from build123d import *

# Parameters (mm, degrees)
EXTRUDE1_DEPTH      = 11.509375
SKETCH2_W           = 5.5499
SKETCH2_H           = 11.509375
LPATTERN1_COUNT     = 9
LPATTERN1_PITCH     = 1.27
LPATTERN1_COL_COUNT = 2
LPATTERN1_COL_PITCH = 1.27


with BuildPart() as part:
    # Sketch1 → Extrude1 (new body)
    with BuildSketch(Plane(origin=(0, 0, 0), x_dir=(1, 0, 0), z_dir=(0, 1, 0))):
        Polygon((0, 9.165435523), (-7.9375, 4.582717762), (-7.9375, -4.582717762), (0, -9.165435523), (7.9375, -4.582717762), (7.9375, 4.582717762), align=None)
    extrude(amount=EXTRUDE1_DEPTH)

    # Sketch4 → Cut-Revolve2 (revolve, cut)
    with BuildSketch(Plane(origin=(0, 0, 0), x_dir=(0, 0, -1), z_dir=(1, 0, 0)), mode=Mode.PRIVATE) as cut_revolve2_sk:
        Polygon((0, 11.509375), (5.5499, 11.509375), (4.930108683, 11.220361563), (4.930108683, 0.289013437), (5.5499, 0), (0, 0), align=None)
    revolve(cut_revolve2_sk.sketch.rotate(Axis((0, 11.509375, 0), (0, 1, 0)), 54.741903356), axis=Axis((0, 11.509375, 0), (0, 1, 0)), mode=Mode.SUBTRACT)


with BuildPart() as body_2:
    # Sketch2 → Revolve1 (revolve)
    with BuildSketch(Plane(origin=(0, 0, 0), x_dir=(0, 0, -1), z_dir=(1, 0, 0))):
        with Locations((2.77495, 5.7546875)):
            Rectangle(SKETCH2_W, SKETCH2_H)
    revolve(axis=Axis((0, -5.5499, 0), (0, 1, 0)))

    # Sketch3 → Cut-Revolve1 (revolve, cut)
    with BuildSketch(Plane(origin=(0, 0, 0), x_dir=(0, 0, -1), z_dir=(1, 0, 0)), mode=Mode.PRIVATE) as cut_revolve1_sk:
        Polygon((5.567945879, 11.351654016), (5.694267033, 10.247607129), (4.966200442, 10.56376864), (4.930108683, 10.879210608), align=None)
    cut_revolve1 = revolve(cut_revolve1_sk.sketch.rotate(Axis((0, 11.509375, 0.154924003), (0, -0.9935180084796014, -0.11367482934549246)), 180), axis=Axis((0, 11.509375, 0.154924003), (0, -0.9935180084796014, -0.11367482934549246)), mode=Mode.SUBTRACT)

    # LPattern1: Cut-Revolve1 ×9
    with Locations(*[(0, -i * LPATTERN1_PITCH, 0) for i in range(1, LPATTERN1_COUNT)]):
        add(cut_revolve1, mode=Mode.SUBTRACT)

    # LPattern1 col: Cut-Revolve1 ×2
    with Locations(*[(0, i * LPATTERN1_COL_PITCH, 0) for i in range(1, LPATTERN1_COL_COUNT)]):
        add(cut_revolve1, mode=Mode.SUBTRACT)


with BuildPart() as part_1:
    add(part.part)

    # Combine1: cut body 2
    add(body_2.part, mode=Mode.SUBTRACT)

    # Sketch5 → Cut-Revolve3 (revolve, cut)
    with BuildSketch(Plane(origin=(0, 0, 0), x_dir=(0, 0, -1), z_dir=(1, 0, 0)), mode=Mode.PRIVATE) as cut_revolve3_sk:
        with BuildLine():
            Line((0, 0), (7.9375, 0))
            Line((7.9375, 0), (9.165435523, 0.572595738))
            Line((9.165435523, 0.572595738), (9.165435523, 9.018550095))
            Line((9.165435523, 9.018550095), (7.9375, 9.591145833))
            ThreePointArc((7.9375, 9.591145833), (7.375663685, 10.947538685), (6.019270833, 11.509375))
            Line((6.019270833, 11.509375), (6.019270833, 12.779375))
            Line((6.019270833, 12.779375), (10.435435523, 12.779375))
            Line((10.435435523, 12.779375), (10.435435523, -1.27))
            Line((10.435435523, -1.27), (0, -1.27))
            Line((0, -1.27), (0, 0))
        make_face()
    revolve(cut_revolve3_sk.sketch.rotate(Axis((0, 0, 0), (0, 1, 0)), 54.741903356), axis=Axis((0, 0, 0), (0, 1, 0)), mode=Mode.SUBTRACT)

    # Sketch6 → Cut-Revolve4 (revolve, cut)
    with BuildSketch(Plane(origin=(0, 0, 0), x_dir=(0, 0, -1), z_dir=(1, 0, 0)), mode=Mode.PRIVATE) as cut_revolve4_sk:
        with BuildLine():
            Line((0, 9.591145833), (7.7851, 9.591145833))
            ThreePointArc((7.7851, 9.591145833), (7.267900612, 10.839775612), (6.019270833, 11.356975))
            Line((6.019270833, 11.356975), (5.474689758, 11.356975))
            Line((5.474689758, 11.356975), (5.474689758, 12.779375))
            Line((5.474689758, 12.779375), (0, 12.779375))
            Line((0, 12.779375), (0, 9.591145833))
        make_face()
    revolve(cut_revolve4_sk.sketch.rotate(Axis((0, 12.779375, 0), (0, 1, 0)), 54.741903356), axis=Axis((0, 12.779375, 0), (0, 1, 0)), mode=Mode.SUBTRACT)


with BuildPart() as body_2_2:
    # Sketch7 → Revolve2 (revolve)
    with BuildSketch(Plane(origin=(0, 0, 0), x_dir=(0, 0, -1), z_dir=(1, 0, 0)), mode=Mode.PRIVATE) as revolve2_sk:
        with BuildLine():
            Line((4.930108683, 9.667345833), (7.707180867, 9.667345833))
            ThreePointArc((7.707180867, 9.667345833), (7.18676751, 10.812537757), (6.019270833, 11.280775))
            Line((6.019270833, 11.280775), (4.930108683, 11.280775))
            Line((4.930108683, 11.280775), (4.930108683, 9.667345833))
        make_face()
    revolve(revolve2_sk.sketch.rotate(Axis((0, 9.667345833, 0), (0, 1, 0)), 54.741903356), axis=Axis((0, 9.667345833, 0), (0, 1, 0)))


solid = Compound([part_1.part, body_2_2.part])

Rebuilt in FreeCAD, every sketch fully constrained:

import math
import FreeCAD as App
import Part
import Sketcher
Q = App.Units.Quantity


def add_polygon(sketch, points):
    """Adds a closed chain of lines whose ends are joined by coincident constraints."""
    first, n = sketch.GeometryCount, len(points)
    for a, b in zip(points, points[1:] + points[:1]):
        sketch.addGeometry(Part.LineSegment(App.Vector(*a, 0), App.Vector(*b, 0)), False)
    for i in range(n):
        sketch.addConstraint(Sketcher.Constraint("Coincident", first + i, 2, first + (i + 1) % n, 1))

doc = App.newDocument("Part")
params = doc.addObject("Spreadsheet::Sheet", "Params")
for row, (alias, value) in enumerate([
    ("pad1_length", "0.453125 in"),
    ("sketch2_width", "0.453125 in"),
    ("groove_angle", "360 deg"),
    ("sketch3_width", "0.453125 in"),
    ("revolution_angle", "360 deg"),
    ("sketch4_length", "0.03125 in"),
    ("groove2_angle", "360 deg"),
    ("linearpattern_pitch", "0.05 in"),
    ("linearpattern2_pitch", "0.05 in"),
    ("sketch5_width", "0.05 in"),
    ("sketch5_height", "0.3125 in"),
    ("groove3_angle", "360 deg"),
    ("sketch6_width", "0.056 in"),
    ("groove4_angle", "360 deg"),
    ("revolution2_angle", "360 deg"),
], start=1):
    params.set(f"A{row}", alias)
    params.set(f"B{row}", "=" + value)
    params.setAlias(f"B{row}", alias)

body = doc.addObject("PartDesign::Body", "Body")

# Sketch on XZ plane
sketch1 = body.newObject("Sketcher::SketchObject", "Sketch")
sketch1.AttachmentSupport = (doc.getObject("XZ_Plane"), [""])
sketch1.MapMode = "FlatFace"
add_polygon(sketch1, [(0, -9), (-8, -5), (-8, 5), (0, 9), (8, 5), (8, -5)])  # lines 0-5
sketch1.addConstraint(Sketcher.Constraint("Vertical", 1))
sketch1.addConstraint(Sketcher.Constraint("Vertical", 4))
sketch1.addConstraint(Sketcher.Constraint("Symmetric", 0, 2, 3, 2, -1, 1))
sketch1.addConstraint(Sketcher.Constraint("Symmetric", 2, 2, 5, 2, -1, 1))
sketch1.addConstraint(Sketcher.Constraint("PointOnObject", 2, 2, -2))
sketch1.addConstraint(Sketcher.Constraint("Parallel", 2, 5))
sketch1.addConstraint(Sketcher.Constraint("Horizontal", 1, 2, 3, 2))
sketch1.addConstraint(Sketcher.Constraint("Angle", 0, Q("150 deg")))
sketch1.addConstraint(Sketcher.Constraint("DistanceX", 0, 2, -1, 1, Q("0.3125 in")))
sketch1.addConstraint(Sketcher.Constraint("DistanceY", 1, 1, 1, 2, Q("9.165436 mm")))
pad1 = body.newObject("PartDesign::Pad", "Pad")
pad1.Profile = sketch1
pad1.setExpression("Length", "Params.pad1_length")
pad1.Reversed = True

# Sketch on YZ plane
sketch2 = body.newObject("Sketcher::SketchObject", "Sketch001")
sketch2.AttachmentSupport = (doc.getObject("YZ_Plane"), [""])
sketch2.MapMode = "FlatFace"
add_polygon(sketch2, [(11.5, -5.5), (11.5, 0), (0, 0), (0, -5.5), (0.3, -4.9), (11.2, -4.9)])  # lines 0-5
sketch2.addConstraint(Sketcher.Constraint("Vertical", 0))
sketch2.addConstraint(Sketcher.Constraint("Horizontal", 1))
sketch2.addConstraint(Sketcher.Constraint("Vertical", 2))
sketch2.addConstraint(Sketcher.Constraint("Horizontal", 4))
sketch2.addConstraint(Sketcher.Constraint("Coincident", 1, 2, -1, 1))
sketch2.addConstraint(Sketcher.Constraint("Horizontal", 2, 2, 5, 2))
sketch2.addConstraint(Sketcher.Constraint("Equal", 3, 5))
sketch2.addConstraint(Sketcher.Constraint("Angle", 3, Q("65 deg")))
sketch2.addConstraint(Sketcher.Constraint("DistanceX", 1, 2, 1, 1, Q("0.453125 in")))
sketch2.addConstraint(Sketcher.Constraint("DistanceY", 0, 1, 0, 2, Q("0.2185 in")))
sketch2.addConstraint(Sketcher.Constraint("DistanceX", 4, 1, 4, 2, Q("10.931348 mm")))
sketch2.setExpression("Constraints[14]", "Params.sketch2_width")
groove = body.newObject("PartDesign::Groove", "Groove")
groove.Profile = sketch2
groove.ReferenceAxis = (sketch2, ["H_Axis"])
groove.setExpression("Angle", "Params.groove_angle")
body2 = doc.addObject("PartDesign::Body", "Body001")

# Sketch on YZ plane
sketch3 = body2.newObject("Sketcher::SketchObject", "Sketch002")
sketch3.AttachmentSupport = (doc.getObject("YZ_Plane001"), [""])
sketch3.MapMode = "FlatFace"
add_polygon(sketch3, [(12, 0), (0, 0), (0, -6), (12, -6)])  # lines 0-3
sketch3.addConstraint(Sketcher.Constraint("Horizontal", 0))
sketch3.addConstraint(Sketcher.Constraint("Vertical", 1))
sketch3.addConstraint(Sketcher.Constraint("Horizontal", 2))
sketch3.addConstraint(Sketcher.Constraint("Vertical", 3))
sketch3.addConstraint(Sketcher.Constraint("Coincident", 0, 2, -1, 1))
sketch3.addConstraint(Sketcher.Constraint("DistanceX", 0, 2, 0, 1, Q("0.453125 in")))
sketch3.addConstraint(Sketcher.Constraint("DistanceY", 1, 2, 1, 1, Q("0.2185 in")))
sketch3.setExpression("Constraints[9]", "Params.sketch3_width")
revolution = body2.newObject("PartDesign::Revolution", "Revolution")
revolution.Profile = sketch3
revolution.ReferenceAxis = (sketch3, ["H_Axis"])
revolution.setExpression("Angle", "Params.revolution_angle")

# Sketch on YZ plane
sketch4 = body2.newObject("Sketcher::SketchObject", "Sketch003")
sketch4.AttachmentSupport = (doc.getObject("YZ_Plane001"), [""])
sketch4.MapMode = "FlatFace"
add_polygon(sketch4, [(10.25, -5.69), (11.35, -5.57), (10.88, -4.93), (10.56, -4.97)])  # lines 0-3
sketch4.addGeometry(Part.LineSegment(App.Vector(10.71, 0.06, 0), App.Vector(9.6, -0.06, 0)), True)  # axis
sketch4.addConstraint(Sketcher.Constraint("Parallel", 0, 2))
sketch4.addConstraint(Sketcher.Constraint("Parallel", 2, 4))
sketch4.addConstraint(Sketcher.Constraint("Equal", 1, 3))
sketch4.addConstraint(Sketcher.Constraint("Equal", 0, 4))
sketch4.addConstraint(Sketcher.Constraint("Distance", 1, Q("0.03125 in")))
sketch4.addConstraint(Sketcher.Constraint("Distance", 2, Q("0.0125 in")))
sketch4.addConstraint(Sketcher.Constraint("DistanceX", 1, 2, 0, 2, Q("0.0186001 in")))
sketch4.addConstraint(Sketcher.Constraint("DistanceY", 2, 2, -1, 1, Q("4.9662 mm")))
sketch4.addConstraint(Sketcher.Constraint("Distance", 0, Q("1.11125 mm")))
sketch4.addConstraint(Sketcher.Constraint("DistanceX", -1, 1, 1, 2, Q("10.879211 mm")))
sketch4.addConstraint(Sketcher.Constraint("DistanceY", -1, 1, 4, 1, Q("0.063161 mm")))
sketch4.addConstraint(Sketcher.Constraint("DistanceX", 4, 1, 0, 2, Q("0.644291 mm")))
sketch4.setExpression("Constraints[8]", "Params.sketch4_length")
groove2 = body2.newObject("PartDesign::Groove", "Groove001")
groove2.Profile = sketch4
groove2.ReferenceAxis = (sketch4, ["Axis0"])
groove2.setExpression("Angle", "Params.groove2_angle")
doc.recompute()

linearpattern = body2.newObject("PartDesign::LinearPattern", "LinearPattern")
linearpattern.Originals = [groove2]
linearpattern.Direction = (doc.getObject("Y_Axis001"), [""])
linearpattern.Mode = "offset"
linearpattern.setExpression("Offset", "Params.linearpattern_pitch")
linearpattern.Occurrences = 9
linearpattern.Reversed = True
body2.Tip = linearpattern
doc.recompute()

linearpattern2 = body2.newObject("PartDesign::LinearPattern", "LinearPattern001")
linearpattern2.Originals = [groove2]
linearpattern2.Direction = (doc.getObject("Y_Axis001"), [""])
linearpattern2.Mode = "offset"
linearpattern2.setExpression("Offset", "Params.linearpattern2_pitch")
linearpattern2.Occurrences = 2
body2.Tip = linearpattern2
doc.recompute()

boolean = body.newObject("PartDesign::Boolean", "Boolean")
boolean.Type = "Cut"
boolean.addObjects([body2])

# Sketch on YZ plane
sketch5 = body.newObject("Sketcher::SketchObject", "Sketch004")
sketch5.AttachmentSupport = (doc.getObject("YZ_Plane"), [""])
sketch5.MapMode = "FlatFace"
sketch5.addGeometry(Part.LineSegment(App.Vector(0, -7.9, 0), App.Vector(0, 0, 0)), False)
sketch5.addGeometry(Part.LineSegment(App.Vector(0, 0, 0), App.Vector(-1.3, 0, 0)), False)
sketch5.addGeometry(Part.LineSegment(App.Vector(-1.3, 0, 0), App.Vector(-1.3, -10.4, 0)), False)
sketch5.addGeometry(Part.LineSegment(App.Vector(-1.3, -10.4, 0), App.Vector(12.8, -10.4, 0)), False)
sketch5.addGeometry(Part.LineSegment(App.Vector(12.8, -10.4, 0), App.Vector(12.8, -6, 0)), False)
sketch5.addGeometry(Part.LineSegment(App.Vector(12.8, -6, 0), App.Vector(11.5, -6, 0)), False)
sketch5.addGeometry(Part.ArcOfCircle(Part.Circle(App.Vector(9.6, -6, 0), App.Vector(0, 0, 1), 1.9), math.radians(-90), math.radians(0)), False)
sketch5.addGeometry(Part.LineSegment(App.Vector(9.6, -7.9, 0), App.Vector(9, -9.2, 0)), False)
sketch5.addGeometry(Part.LineSegment(App.Vector(9, -9.2, 0), App.Vector(0.6, -9.2, 0)), False)
sketch5.addGeometry(Part.LineSegment(App.Vector(0.6, -9.2, 0), App.Vector(0, -7.9, 0)), False)
sketch5.addConstraint(Sketcher.Constraint("Coincident", 0, 2, 1, 1))
sketch5.addConstraint(Sketcher.Constraint("Coincident", 1, 2, 2, 1))
sketch5.addConstraint(Sketcher.Constraint("Coincident", 2, 2, 3, 1))
sketch5.addConstraint(Sketcher.Constraint("Coincident", 3, 2, 4, 1))
sketch5.addConstraint(Sketcher.Constraint("Coincident", 4, 2, 5, 1))
sketch5.addConstraint(Sketcher.Constraint("Coincident", 5, 2, 6, 2))
sketch5.addConstraint(Sketcher.Constraint("Coincident", 6, 1, 7, 1))
sketch5.addConstraint(Sketcher.Constraint("Coincident", 7, 2, 8, 1))
sketch5.addConstraint(Sketcher.Constraint("Coincident", 8, 2, 9, 1))
sketch5.addConstraint(Sketcher.Constraint("Coincident", 9, 2, 0, 1))
sketch5.addConstraint(Sketcher.Constraint("Vertical", 0))
sketch5.addConstraint(Sketcher.Constraint("Horizontal", 1))
sketch5.addConstraint(Sketcher.Constraint("Vertical", 2))
sketch5.addConstraint(Sketcher.Constraint("Horizontal", 3))
sketch5.addConstraint(Sketcher.Constraint("Vertical", 4))
sketch5.addConstraint(Sketcher.Constraint("Horizontal", 5))
sketch5.addConstraint(Sketcher.Constraint("Horizontal", 8))
sketch5.addConstraint(Sketcher.Constraint("Coincident", 0, 2, -1, 1))
sketch5.addConstraint(Sketcher.Constraint("Horizontal", 6, 3, 4, 2))
sketch5.addConstraint(Sketcher.Constraint("Horizontal", 6, 1, 9, 2))
sketch5.addConstraint(Sketcher.Constraint("Equal", 1, 5))
sketch5.addConstraint(Sketcher.Constraint("Equal", 7, 9))
sketch5.addConstraint(Sketcher.Constraint("Angle", 7, Q("-115 deg")))
sketch5.addConstraint(Sketcher.Constraint("DistanceX", 1, 2, 1, 1, Q("0.05 in")))
sketch5.addConstraint(Sketcher.Constraint("DistanceY", 0, 1, 0, 2, Q("0.3125 in")))
sketch5.addConstraint(Sketcher.Constraint("DistanceY", 3, 2, 7, 2, Q("0.05 in")))
sketch5.addConstraint(Sketcher.Constraint("DistanceX", -1, 1, 5, 2, Q("0.453125 in")))
sketch5.addConstraint(Sketcher.Constraint("Radius", 6, Q("1.918229 mm")))
sketch5.addConstraint(Sketcher.Constraint("DistanceX", 8, 2, 8, 1, Q("8.445954 mm")))
sketch5.addConstraint(Sketcher.Constraint("DistanceY", 2, 2, 2, 1, Q("10.435436 mm")))
sketch5.setExpression("Constraints[23]", "Params.sketch5_width")
sketch5.setExpression("Constraints[24]", "Params.sketch5_height")
groove3 = body.newObject("PartDesign::Groove", "Groove002")
groove3.Profile = sketch5
groove3.ReferenceAxis = (sketch5, ["H_Axis"])
groove3.setExpression("Angle", "Params.groove3_angle")

# Sketch on YZ plane
sketch6 = body.newObject("Sketcher::SketchObject", "Sketch005")
sketch6.AttachmentSupport = (doc.getObject("YZ_Plane"), [""])
sketch6.MapMode = "FlatFace"
sketch6.addGeometry(Part.LineSegment(App.Vector(9.6, 0, 0), App.Vector(9.6, -7.8, 0)), False)
sketch6.addGeometry(Part.ArcOfCircle(Part.Circle(App.Vector(9.6, -6, 0), App.Vector(0, 0, 1), 1.8), math.radians(-90), math.radians(0)), False)
sketch6.addGeometry(Part.LineSegment(App.Vector(11.4, -6, 0), App.Vector(11.4, -5.5, 0)), False)
sketch6.addGeometry(Part.LineSegment(App.Vector(11.4, -5.5, 0), App.Vector(12.8, -5.5, 0)), False)
sketch6.addGeometry(Part.LineSegment(App.Vector(12.8, -5.5, 0), App.Vector(12.8, 0, 0)), False)
sketch6.addGeometry(Part.LineSegment(App.Vector(12.8, 0, 0), App.Vector(9.6, 0, 0)), False)
sketch6.addConstraint(Sketcher.Constraint("Coincident", 0, 2, 1, 1))
sketch6.addConstraint(Sketcher.Constraint("Tangent", 1, 2, 2, 1))
sketch6.addConstraint(Sketcher.Constraint("Coincident", 2, 2, 3, 1))
sketch6.addConstraint(Sketcher.Constraint("Coincident", 3, 2, 4, 1))
sketch6.addConstraint(Sketcher.Constraint("Coincident", 4, 2, 5, 1))
sketch6.addConstraint(Sketcher.Constraint("Coincident", 5, 2, 0, 1))
sketch6.addConstraint(Sketcher.Constraint("Vertical", 0))
sketch6.addConstraint(Sketcher.Constraint("Vertical", 2))
sketch6.addConstraint(Sketcher.Constraint("Horizontal", 3))
sketch6.addConstraint(Sketcher.Constraint("Vertical", 4))
sketch6.addConstraint(Sketcher.Constraint("Horizontal", 5))
sketch6.addConstraint(Sketcher.Constraint("PointOnObject", 4, 2, -1))
sketch6.addConstraint(Sketcher.Constraint("Vertical", 1, 3, 0, 2))
sketch6.addConstraint(Sketcher.Constraint("DistanceX", 3, 1, 3, 2, Q("0.056 in")))
sketch6.addConstraint(Sketcher.Constraint("DistanceY", 0, 2, 0, 1, Q("0.3065 in")))
sketch6.addConstraint(Sketcher.Constraint("Radius", 1, Q("1.765829 mm")))
sketch6.addConstraint(Sketcher.Constraint("DistanceY", 2, 1, 2, 2, Q("0.544581 mm")))
sketch6.addConstraint(Sketcher.Constraint("DistanceX", -1, 1, 1, 3, Q("9.591146 mm")))
sketch6.setExpression("Constraints[13]", "Params.sketch6_width")
groove4 = body.newObject("PartDesign::Groove", "Groove003")
groove4.Profile = sketch6
groove4.ReferenceAxis = (sketch6, ["H_Axis"])
groove4.setExpression("Angle", "Params.groove4_angle")
body3 = doc.addObject("PartDesign::Body", "Body002")

# Sketch on YZ plane
sketch7 = body3.newObject("Sketcher::SketchObject", "Sketch006")
sketch7.AttachmentSupport = (doc.getObject("YZ_Plane002"), [""])
sketch7.MapMode = "FlatFace"
sketch7.addGeometry(Part.LineSegment(App.Vector(9.7, -4.9, 0), App.Vector(9.7, -7.7, 0)), False)
sketch7.addGeometry(Part.ArcOfCircle(Part.Circle(App.Vector(9.6, -6, 0), App.Vector(0, 0, 1), 1.7), math.radians(-87), math.radians(0)), False)
sketch7.addGeometry(Part.LineSegment(App.Vector(11.3, -6, 0), App.Vector(11.3, -4.9, 0)), False)
sketch7.addGeometry(Part.LineSegment(App.Vector(11.3, -4.9, 0), App.Vector(9.7, -4.9, 0)), False)
sketch7.addConstraint(Sketcher.Constraint("Coincident", 0, 2, 1, 1))
sketch7.addConstraint(Sketcher.Constraint("Tangent", 1, 2, 2, 1))
sketch7.addConstraint(Sketcher.Constraint("Coincident", 2, 2, 3, 1))
sketch7.addConstraint(Sketcher.Constraint("Coincident", 3, 2, 0, 1))
sketch7.addConstraint(Sketcher.Constraint("Vertical", 0))
sketch7.addConstraint(Sketcher.Constraint("Vertical", 2))
sketch7.addConstraint(Sketcher.Constraint("Horizontal", 3))
sketch7.addConstraint(Sketcher.Constraint("Radius", 1, Q("1.689629 mm")))
sketch7.addConstraint(Sketcher.Constraint("DistanceX", 1, 3, 0, 2, Q("0.003 in")))
sketch7.addConstraint(Sketcher.Constraint("DistanceY", 0, 2, 0, 1, Q("2.777072 mm")))
sketch7.addConstraint(Sketcher.Constraint("DistanceY", 1, 3, -1, 1, Q("6.019271 mm")))
sketch7.addConstraint(Sketcher.Constraint("DistanceX", -1, 1, 1, 3, Q("9.591146 mm")))
revolution2 = body3.newObject("PartDesign::Revolution", "Revolution001")
revolution2.Profile = sketch7
revolution2.ReferenceAxis = (sketch7, ["H_Axis"])
revolution2.setExpression("Angle", "Params.revolution2_angle")

doc.recompute()
